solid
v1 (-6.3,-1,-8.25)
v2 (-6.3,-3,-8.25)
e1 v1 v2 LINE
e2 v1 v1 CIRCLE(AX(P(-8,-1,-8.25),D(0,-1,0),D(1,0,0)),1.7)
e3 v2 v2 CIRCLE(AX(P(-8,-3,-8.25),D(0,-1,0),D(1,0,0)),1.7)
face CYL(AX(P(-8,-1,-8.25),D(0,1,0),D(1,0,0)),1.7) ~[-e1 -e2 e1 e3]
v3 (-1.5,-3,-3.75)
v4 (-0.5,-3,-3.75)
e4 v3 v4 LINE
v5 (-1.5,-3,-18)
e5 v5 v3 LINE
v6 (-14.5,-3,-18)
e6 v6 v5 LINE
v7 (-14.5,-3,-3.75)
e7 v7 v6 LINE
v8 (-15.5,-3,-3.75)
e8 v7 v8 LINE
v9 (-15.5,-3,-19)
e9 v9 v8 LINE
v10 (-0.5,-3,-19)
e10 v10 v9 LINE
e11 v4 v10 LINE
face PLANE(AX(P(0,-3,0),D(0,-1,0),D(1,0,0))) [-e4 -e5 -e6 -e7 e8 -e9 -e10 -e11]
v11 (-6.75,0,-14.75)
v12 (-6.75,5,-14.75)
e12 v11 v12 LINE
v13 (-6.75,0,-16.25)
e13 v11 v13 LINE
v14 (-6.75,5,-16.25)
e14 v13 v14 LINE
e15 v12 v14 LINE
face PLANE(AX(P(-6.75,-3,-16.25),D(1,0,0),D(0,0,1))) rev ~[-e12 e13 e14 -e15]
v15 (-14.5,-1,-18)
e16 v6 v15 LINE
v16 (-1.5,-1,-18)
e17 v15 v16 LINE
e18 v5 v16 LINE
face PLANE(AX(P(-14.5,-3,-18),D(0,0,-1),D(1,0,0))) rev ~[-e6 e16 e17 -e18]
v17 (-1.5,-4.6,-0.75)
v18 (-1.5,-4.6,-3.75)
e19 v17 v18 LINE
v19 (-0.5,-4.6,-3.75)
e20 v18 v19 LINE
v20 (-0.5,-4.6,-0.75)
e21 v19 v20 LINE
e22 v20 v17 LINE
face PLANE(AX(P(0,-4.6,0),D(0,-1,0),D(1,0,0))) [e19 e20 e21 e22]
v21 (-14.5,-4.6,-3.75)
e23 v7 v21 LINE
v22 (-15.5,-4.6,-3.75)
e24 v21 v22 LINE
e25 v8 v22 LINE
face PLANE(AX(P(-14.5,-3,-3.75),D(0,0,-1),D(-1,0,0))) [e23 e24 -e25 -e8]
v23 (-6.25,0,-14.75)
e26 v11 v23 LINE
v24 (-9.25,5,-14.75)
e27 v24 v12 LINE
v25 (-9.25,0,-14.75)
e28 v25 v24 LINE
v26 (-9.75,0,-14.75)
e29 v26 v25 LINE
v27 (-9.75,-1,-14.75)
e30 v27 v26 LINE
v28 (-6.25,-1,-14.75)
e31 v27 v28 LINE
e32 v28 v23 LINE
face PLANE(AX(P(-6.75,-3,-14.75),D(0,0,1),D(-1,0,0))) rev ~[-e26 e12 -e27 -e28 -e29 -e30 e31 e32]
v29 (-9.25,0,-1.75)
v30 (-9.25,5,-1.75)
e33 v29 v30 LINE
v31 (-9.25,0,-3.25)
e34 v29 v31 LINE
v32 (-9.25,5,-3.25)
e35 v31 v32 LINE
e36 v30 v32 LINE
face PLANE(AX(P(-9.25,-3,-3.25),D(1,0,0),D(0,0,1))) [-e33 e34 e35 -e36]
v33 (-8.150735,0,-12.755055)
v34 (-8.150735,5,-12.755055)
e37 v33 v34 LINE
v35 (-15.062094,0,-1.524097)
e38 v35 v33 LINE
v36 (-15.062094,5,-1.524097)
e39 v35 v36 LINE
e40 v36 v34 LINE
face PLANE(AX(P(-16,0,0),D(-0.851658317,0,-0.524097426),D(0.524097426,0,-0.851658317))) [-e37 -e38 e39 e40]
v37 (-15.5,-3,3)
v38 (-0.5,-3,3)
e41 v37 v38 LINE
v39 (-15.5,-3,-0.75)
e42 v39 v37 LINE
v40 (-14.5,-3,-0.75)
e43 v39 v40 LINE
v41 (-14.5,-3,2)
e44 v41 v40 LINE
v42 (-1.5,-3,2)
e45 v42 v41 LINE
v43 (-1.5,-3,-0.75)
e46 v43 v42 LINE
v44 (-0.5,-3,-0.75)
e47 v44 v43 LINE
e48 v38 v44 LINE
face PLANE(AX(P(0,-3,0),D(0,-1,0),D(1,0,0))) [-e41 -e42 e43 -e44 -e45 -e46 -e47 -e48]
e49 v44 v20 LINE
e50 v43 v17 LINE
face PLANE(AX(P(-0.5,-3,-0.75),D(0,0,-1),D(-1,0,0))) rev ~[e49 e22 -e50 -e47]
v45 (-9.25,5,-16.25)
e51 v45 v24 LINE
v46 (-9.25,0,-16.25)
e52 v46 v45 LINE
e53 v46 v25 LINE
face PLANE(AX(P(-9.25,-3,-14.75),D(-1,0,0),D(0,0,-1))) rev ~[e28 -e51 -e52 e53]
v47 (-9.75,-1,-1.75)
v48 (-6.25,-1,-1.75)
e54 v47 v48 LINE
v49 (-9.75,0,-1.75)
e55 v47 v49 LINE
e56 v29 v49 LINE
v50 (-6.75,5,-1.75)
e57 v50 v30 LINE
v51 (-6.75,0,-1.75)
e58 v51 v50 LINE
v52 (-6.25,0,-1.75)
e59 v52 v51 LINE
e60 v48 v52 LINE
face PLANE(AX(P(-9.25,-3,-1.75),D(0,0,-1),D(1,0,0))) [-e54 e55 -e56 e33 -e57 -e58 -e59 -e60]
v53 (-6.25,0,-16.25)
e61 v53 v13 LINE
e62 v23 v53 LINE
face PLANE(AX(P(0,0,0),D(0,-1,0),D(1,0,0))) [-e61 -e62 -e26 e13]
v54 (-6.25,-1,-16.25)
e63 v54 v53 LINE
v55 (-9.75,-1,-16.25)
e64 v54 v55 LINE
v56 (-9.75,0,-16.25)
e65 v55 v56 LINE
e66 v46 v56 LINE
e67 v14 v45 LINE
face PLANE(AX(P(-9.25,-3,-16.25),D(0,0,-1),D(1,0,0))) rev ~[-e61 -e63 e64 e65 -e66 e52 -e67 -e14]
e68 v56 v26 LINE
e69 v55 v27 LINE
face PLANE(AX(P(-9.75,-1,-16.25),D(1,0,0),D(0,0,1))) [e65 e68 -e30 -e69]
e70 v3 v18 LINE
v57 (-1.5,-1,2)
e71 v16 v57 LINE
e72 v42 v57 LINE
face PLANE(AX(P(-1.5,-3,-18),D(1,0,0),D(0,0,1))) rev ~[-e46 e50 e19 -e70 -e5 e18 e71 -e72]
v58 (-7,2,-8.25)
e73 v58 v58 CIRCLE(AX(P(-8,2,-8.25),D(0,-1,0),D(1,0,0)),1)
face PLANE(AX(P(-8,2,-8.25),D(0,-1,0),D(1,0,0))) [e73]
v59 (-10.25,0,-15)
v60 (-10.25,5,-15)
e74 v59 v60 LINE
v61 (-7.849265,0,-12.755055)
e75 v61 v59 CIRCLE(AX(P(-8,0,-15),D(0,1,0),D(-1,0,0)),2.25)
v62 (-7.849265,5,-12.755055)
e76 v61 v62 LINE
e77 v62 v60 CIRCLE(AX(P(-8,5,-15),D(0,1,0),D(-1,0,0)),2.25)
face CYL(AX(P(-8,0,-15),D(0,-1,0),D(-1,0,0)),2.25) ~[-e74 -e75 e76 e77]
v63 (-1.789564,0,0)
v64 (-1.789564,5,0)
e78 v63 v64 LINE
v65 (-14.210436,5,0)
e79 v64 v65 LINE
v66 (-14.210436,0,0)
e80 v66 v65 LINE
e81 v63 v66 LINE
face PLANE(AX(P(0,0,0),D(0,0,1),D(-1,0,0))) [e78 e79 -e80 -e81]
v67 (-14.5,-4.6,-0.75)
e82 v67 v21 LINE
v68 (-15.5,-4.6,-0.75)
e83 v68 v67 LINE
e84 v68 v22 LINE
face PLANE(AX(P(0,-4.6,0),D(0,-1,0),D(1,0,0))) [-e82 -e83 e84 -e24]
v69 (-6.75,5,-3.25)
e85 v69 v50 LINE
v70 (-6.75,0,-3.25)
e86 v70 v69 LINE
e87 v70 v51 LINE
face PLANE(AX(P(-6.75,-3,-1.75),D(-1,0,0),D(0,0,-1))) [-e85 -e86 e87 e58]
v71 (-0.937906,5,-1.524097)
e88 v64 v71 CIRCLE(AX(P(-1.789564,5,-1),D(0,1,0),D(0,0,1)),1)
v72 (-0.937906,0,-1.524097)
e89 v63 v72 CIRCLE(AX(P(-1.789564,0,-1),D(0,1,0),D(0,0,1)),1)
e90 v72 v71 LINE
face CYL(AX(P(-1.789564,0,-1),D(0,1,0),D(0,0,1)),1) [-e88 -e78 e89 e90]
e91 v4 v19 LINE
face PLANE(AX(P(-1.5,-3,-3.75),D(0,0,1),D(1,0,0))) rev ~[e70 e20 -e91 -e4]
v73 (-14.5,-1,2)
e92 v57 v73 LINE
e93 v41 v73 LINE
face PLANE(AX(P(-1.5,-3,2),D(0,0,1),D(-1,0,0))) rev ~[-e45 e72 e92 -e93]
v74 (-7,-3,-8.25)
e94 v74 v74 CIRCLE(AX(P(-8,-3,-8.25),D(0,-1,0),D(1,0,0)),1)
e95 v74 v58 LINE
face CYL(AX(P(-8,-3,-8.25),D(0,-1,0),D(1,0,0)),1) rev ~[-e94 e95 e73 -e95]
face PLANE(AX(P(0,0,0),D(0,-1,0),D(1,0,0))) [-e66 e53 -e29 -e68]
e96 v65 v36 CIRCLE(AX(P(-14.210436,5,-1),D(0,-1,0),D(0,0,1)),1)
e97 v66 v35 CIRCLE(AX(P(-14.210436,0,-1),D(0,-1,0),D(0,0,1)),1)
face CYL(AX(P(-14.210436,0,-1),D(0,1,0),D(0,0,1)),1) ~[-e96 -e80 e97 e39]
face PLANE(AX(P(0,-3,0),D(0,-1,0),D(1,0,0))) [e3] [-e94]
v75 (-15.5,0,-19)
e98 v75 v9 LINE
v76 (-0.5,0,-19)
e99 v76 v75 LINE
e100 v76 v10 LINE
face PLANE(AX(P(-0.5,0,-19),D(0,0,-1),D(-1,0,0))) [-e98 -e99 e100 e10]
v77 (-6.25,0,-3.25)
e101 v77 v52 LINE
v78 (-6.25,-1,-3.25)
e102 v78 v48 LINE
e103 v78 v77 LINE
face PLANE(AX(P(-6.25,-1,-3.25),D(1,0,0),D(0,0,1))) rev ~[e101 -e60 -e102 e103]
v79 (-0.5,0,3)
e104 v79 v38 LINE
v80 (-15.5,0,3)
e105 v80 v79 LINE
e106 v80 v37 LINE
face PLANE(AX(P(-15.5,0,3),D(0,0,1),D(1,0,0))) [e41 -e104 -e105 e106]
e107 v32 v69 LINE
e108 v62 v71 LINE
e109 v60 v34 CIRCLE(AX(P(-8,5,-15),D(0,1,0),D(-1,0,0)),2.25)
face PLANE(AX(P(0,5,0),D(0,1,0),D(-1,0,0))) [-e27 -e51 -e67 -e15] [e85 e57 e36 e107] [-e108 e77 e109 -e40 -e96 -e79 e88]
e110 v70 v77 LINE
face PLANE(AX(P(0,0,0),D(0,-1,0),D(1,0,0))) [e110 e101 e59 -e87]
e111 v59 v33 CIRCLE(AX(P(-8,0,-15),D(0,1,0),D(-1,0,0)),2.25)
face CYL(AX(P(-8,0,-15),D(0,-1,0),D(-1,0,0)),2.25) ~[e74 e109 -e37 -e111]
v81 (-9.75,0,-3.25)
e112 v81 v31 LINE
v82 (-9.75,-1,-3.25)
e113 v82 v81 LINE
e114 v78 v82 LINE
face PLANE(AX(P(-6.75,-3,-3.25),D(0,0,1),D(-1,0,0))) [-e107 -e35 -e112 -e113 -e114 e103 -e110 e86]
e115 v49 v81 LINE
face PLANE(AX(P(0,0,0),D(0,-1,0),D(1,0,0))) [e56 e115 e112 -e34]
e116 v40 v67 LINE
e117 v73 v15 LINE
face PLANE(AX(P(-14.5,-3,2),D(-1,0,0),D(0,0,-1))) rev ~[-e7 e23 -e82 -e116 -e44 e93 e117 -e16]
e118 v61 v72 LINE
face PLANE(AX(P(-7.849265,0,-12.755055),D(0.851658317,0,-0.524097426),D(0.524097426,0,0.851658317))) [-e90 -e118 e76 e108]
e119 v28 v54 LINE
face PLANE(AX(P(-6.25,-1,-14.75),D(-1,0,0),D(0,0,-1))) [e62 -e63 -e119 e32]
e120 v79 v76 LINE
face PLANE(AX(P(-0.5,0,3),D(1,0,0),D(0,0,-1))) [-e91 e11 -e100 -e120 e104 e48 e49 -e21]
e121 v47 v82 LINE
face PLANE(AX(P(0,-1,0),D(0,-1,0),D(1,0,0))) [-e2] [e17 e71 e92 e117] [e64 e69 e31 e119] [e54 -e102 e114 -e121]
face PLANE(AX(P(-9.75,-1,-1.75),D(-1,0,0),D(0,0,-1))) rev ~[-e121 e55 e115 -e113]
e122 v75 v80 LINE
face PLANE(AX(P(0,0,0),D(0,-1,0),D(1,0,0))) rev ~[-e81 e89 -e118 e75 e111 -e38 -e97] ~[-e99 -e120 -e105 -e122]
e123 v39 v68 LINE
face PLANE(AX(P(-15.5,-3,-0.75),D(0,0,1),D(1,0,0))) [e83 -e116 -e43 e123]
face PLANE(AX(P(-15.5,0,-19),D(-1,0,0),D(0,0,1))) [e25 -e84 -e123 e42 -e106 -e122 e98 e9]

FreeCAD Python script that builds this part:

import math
import FreeCAD as App
import Part
import Sketcher
from FreeCAD import Vector
Q = App.Units.Quantity


def edges_at(feature, points):
    """Names of the edges that pass closest to the given points."""
    edges = feature.Shape.Edges
    near = lambda p: min(range(len(edges)), key=lambda i: edges[i].distToShape(Part.Vertex(*p))[0])
    return sorted({f"Edge{near(p) + 1}" for p in points})

doc = App.newDocument("Part")
body = doc.addObject("PartDesign::Body", "Body")

# Sketch on XZ plane
sketch1 = doc.addObject("Sketcher::SketchObject", "Sketch")
body.addObject(sketch1)
sketch1.AttachmentSupport = (doc.XZ_Plane, [""])
sketch1.MapMode = "FlatFace"
sketch1.addGeometry(Part.LineSegment(Vector(-16, 0, 0), Vector(0, 0, 0)), False)
sketch1.addGeometry(Part.LineSegment(Vector(0, 0, 0), Vector(-7.85, -12.76, 0)), False)
sketch1.addGeometry(Part.ArcOfCircle(Part.Circle(Vector(-8, -15, 0), Vector(0, 0, 1), 2.25), math.radians(94), math.radians(446)), False)
sketch1.addGeometry(Part.LineSegment(Vector(-8.15, -12.76, 0), Vector(-16, 0, 0)), False)
sketch1.addConstraint(Sketcher.Constraint("Coincident", 0, 2, 1, 1))
sketch1.addConstraint(Sketcher.Constraint("Coincident", 1, 2, 2, 2))
sketch1.addConstraint(Sketcher.Constraint("Coincident", 2, 1, 3, 1))
sketch1.addConstraint(Sketcher.Constraint("Coincident", 3, 2, 0, 1))
sketch1.addConstraint(Sketcher.Constraint("Horizontal", 0))
sketch1.addConstraint(Sketcher.Constraint("Coincident", 0, 2, -1, 1))
sketch1.addConstraint(Sketcher.Constraint("Horizontal", 1, 2, 2, 1))
sketch1.addConstraint(Sketcher.Constraint("Equal", 1, 3))
sketch1.addConstraint(Sketcher.Constraint("DistanceX", 0, 1, 0, 2, Q("16 mm")))
sketch1.addConstraint(Sketcher.Constraint("Radius", 2, Q("2.25 mm")))
sketch1.addConstraint(Sketcher.Constraint("DistanceY", 2, 3, -1, 1, Q("15 mm")))
sketch1.addConstraint(Sketcher.Constraint("DistanceY", 1, 2, -1, 1, Q("12.755 mm")))
pad1 = doc.addObject("PartDesign::Pad", "Pad")
body.addObject(pad1)
pad1.Profile = sketch1
pad1.Length = 5
pad1.Reversed = True
doc.recompute()

fillet = doc.addObject("PartDesign::Fillet", "Fillet")
body.addObject(fillet)
fillet.Base = (pad1, edges_at(pad1, [(0, 2.5, 0), (-16, 2.5, 0)]))
fillet.Radius = 1

# Sketch on XZ plane
sketch2 = doc.addObject("Sketcher::SketchObject", "Sketch001")
body.addObject(sketch2)
sketch2.AttachmentSupport = (doc.XZ_Plane, [""])
sketch2.MapMode = "FlatFace"
sketch2.addGeometry(Part.LineSegment(Vector(0, 3, 0), Vector(-16, 3, 0)), False)
sketch2.addGeometry(Part.LineSegment(Vector(-16, 3, 0), Vector(-16, -19, 0)), False)
sketch2.addGeometry(Part.LineSegment(Vector(-16, -19, 0), Vector(0, -19, 0)), False)
sketch2.addGeometry(Part.LineSegment(Vector(0, -19, 0), Vector(0, 3, 0)), False)
sketch2.addConstraint(Sketcher.Constraint("Coincident", 0, 2, 1, 1))
sketch2.addConstraint(Sketcher.Constraint("Coincident", 1, 2, 2, 1))
sketch2.addConstraint(Sketcher.Constraint("Coincident", 2, 2, 3, 1))
sketch2.addConstraint(Sketcher.Constraint("Coincident", 3, 2, 0, 1))
sketch2.addConstraint(Sketcher.Constraint("Horizontal", 0))
sketch2.addConstraint(Sketcher.Constraint("Vertical", 1))
sketch2.addConstraint(Sketcher.Constraint("Horizontal", 2))
sketch2.addConstraint(Sketcher.Constraint("Vertical", 3))
sketch2.addConstraint(Sketcher.Constraint("DistanceX", 0, 2, 0, 1, Q("15 mm")))
sketch2.addConstraint(Sketcher.Constraint("DistanceY", 1, 2, 1, 1, Q("22 mm")))
sketch2.addConstraint(Sketcher.Constraint("DistanceY", -1, 1, 0, 2, Q("3 mm")))
sketch2.addConstraint(Sketcher.Constraint("DistanceX", 0, 2, -1, 1, Q("15.5 mm")))
pad2 = doc.addObject("PartDesign::Pad", "Pad001")
body.addObject(pad2)
pad2.Profile = sketch2
pad2.Length = 3

# Sketch on XZ plane
sketch3 = doc.addObject("Sketcher::SketchObject", "Sketch002")
body.addObject(sketch3)
sketch3.AttachmentSupport = (doc.XZ_Plane, [""])
sketch3.MapMode = "FlatFace"
sketch3.AttachmentOffset = App.Placement(Vector(0, 0, 3), App.Rotation())
sketch3.addGeometry(Part.LineSegment(Vector(-1.5, -3.8, 0), Vector(-0.5, -3.8, 0)), False)
sketch3.addGeometry(Part.LineSegment(Vector(-0.5, -3.8, 0), Vector(-0.5, -0.8, 0)), False)
sketch3.addGeometry(Part.LineSegment(Vector(-0.5, -0.8, 0), Vector(-1.5, -0.8, 0)), False)
sketch3.addGeometry(Part.LineSegment(Vector(-1.5, -0.8, 0), Vector(-1.5, -3.8, 0)), False)
sketch3.addGeometry(Part.LineSegment(Vector(-14.5, -0.8, 0), Vector(-15.5, -0.8, 0)), False)
sketch3.addGeometry(Part.LineSegment(Vector(-15.5, -0.8, 0), Vector(-15.5, -3.8, 0)), False)
sketch3.addGeometry(Part.LineSegment(Vector(-15.5, -3.8, 0), Vector(-14.5, -3.8, 0)), False)
sketch3.addGeometry(Part.LineSegment(Vector(-14.5, -3.8, 0), Vector(-14.5, -0.8, 0)), False)
sketch3.addConstraint(Sketcher.Constraint("Coincident", 0, 2, 1, 1))
sketch3.addConstraint(Sketcher.Constraint("Coincident", 1, 2, 2, 1))
sketch3.addConstraint(Sketcher.Constraint("Coincident", 2, 2, 3, 1))
sketch3.addConstraint(Sketcher.Constraint("Coincident", 3, 2, 0, 1))
sketch3.addConstraint(Sketcher.Constraint("Coincident", 4, 2, 5, 1))
sketch3.addConstraint(Sketcher.Constraint("Coincident", 5, 2, 6, 1))
sketch3.addConstraint(Sketcher.Constraint("Coincident", 6, 2, 7, 1))
sketch3.addConstraint(Sketcher.Constraint("Coincident", 7, 2, 4, 1))
sketch3.addConstraint(Sketcher.Constraint("Horizontal", 0))
sketch3.addConstraint(Sketcher.Constraint("Vertical", 1))
sketch3.addConstraint(Sketcher.Constraint("Horizontal", 2))
sketch3.addConstraint(Sketcher.Constraint("Vertical", 3))
sketch3.addConstraint(Sketcher.Constraint("Horizontal", 4))
sketch3.addConstraint(Sketcher.Constraint("Vertical", 5))
sketch3.addConstraint(Sketcher.Constraint("Horizontal", 6))
sketch3.addConstraint(Sketcher.Constraint("Vertical", 7))
sketch3.addConstraint(Sketcher.Constraint("Horizontal", 2, 2, 4, 2))
sketch3.addConstraint(Sketcher.Constraint("Horizontal", 3, 2, 5, 2))
sketch3.addConstraint(Sketcher.Constraint("Equal", 2, 4))
sketch3.addConstraint(Sketcher.Constraint("DistanceX", 0, 1, 0, 2, Q("1 mm")))
sketch3.addConstraint(Sketcher.Constraint("DistanceY", 1, 1, 1, 2, Q("3 mm")))
sketch3.addConstraint(Sketcher.Constraint("DistanceY", 0, 2, -1, 1, Q("3.75 mm")))
sketch3.addConstraint(Sketcher.Constraint("DistanceX", 4, 2, 2, 2, Q("14 mm")))
sketch3.addConstraint(Sketcher.Constraint("DistanceX", 0, 2, -1, 1, Q("0.5 mm")))
pad3 = doc.addObject("PartDesign::Pad", "Pad002")
body.addObject(pad3)
pad3.Profile = sketch3
pad3.Length = 1.6

# Sketch on XZ plane
sketch4 = doc.addObject("Sketcher::SketchObject", "Sketch003")
body.addObject(sketch4)
sketch4.AttachmentSupport = (doc.XZ_Plane, [""])
sketch4.MapMode = "FlatFace"
sketch4.AttachmentOffset = App.Placement(Vector(0, 0, 3), App.Rotation())
sketch4.addGeometry(Part.LineSegment(Vector(-6.8, -1.8, 0), Vector(-9.2, -1.8, 0)), False)
sketch4.addGeometry(Part.LineSegment(Vector(-9.2, -1.8, 0), Vector(-9.2, -3.2, 0)), False)
sketch4.addGeometry(Part.LineSegment(Vector(-9.2, -3.2, 0), Vector(-6.8, -3.2, 0)), False)
sketch4.addGeometry(Part.LineSegment(Vector(-6.8, -3.2, 0), Vector(-6.8, -1.8, 0)), False)
sketch4.addGeometry(Part.LineSegment(Vector(-6.8, -16.2, 0), Vector(-6.8, -14.8, 0)), False)
sketch4.addGeometry(Part.LineSegment(Vector(-6.8, -14.8, 0), Vector(-9.2, -14.8, 0)), False)
sketch4.addGeometry(Part.LineSegment(Vector(-9.2, -14.8, 0), Vector(-9.2, -16.2, 0)), False)
sketch4.addGeometry(Part.LineSegment(Vector(-9.2, -16.2, 0), Vector(-6.8, -16.2, 0)), False)
sketch4.addConstraint(Sketcher.Constraint("Coincident", 0, 2, 1, 1))
sketch4.addConstraint(Sketcher.Constraint("Coincident", 1, 2, 2, 1))
sketch4.addConstraint(Sketcher.Constraint("Coincident", 2, 2, 3, 1))
sketch4.addConstraint(Sketcher.Constraint("Coincident", 3, 2, 0, 1))
sketch4.addConstraint(Sketcher.Constraint("Coincident", 4, 2, 5, 1))
sketch4.addConstraint(Sketcher.Constraint("Coincident", 5, 2, 6, 1))
sketch4.addConstraint(Sketcher.Constraint("Coincident", 6, 2, 7, 1))
sketch4.addConstraint(Sketcher.Constraint("Coincident", 7, 2, 4, 1))
sketch4.addConstraint(Sketcher.Constraint("Horizontal", 0))
sketch4.addConstraint(Sketcher.Constraint("Vertical", 1))
sketch4.addConstraint(Sketcher.Constraint("Horizontal", 2))
sketch4.addConstraint(Sketcher.Constraint("Vertical", 3))
sketch4.addConstraint(Sketcher.Constraint("Vertical", 4))
sketch4.addConstraint(Sketcher.Constraint("Horizontal", 5))
sketch4.addConstraint(Sketcher.Constraint("Vertical", 6))
sketch4.addConstraint(Sketcher.Constraint("Horizontal", 7))
sketch4.addConstraint(Sketcher.Constraint("Vertical", 3, 2, 4, 2))
sketch4.addConstraint(Sketcher.Constraint("Vertical", 1, 2, 5, 2))
sketch4.addConstraint(Sketcher.Constraint("Equal", 3, 4))
sketch4.addConstraint(Sketcher.Constraint("DistanceX", 0, 2, 0, 1, Q("2.5 mm")))
sketch4.addConstraint(Sketcher.Constraint("DistanceY", 1, 2, 1, 1, Q("1.5 mm")))
sketch4.addConstraint(Sketcher.Constraint("DistanceY", 4, 2, 3, 2, Q("13 mm")))
sketch4.addConstraint(Sketcher.Constraint("DistanceX", 0, 2, -1, 1, Q("9.25 mm")))
sketch4.addConstraint(Sketcher.Constraint("DistanceY", 0, 2, -1, 1, Q("1.75 mm")))
pocket1 = doc.addObject("PartDesign::Pocket", "Pocket")
body.addObject(pocket1)
pocket1.Profile = sketch4
pocket1.Length = 16

# Sketch on XZ plane
sketch5 = doc.addObject("Sketcher::SketchObject", "Sketch004")
body.addObject(sketch5)
sketch5.AttachmentSupport = (doc.XZ_Plane, [""])
sketch5.MapMode = "FlatFace"
sketch5.AttachmentOffset = App.Placement(Vector(0, 0, 3), App.Rotation())
sketch5.addGeometry(Part.LineSegment(Vector(-2, -18, 0), Vector(-2, 2, 0)), False)
sketch5.addGeometry(Part.LineSegment(Vector(-2, 2, 0), Vector(-14, 2, 0)), False)
sketch5.addGeometry(Part.LineSegment(Vector(-14, 2, 0), Vector(-14, -18, 0)), False)
sketch5.addGeometry(Part.LineSegment(Vector(-14, -18, 0), Vector(-2, -18, 0)), False)
sketch5.addConstraint(Sketcher.Constraint("Coincident", 0, 2, 1, 1))
sketch5.addConstraint(Sketcher.Constraint("Coincident", 1, 2, 2, 1))
sketch5.addConstraint(Sketcher.Constraint("Coincident", 2, 2, 3, 1))
sketch5.addConstraint(Sketcher.Constraint("Coincident", 3, 2, 0, 1))
sketch5.addConstraint(Sketcher.Constraint("Vertical", 0))
sketch5.addConstraint(Sketcher.Constraint("Horizontal", 1))
sketch5.addConstraint(Sketcher.Constraint("Vertical", 2))
sketch5.addConstraint(Sketcher.Constraint("Horizontal", 3))
sketch5.addConstraint(Sketcher.Constraint("DistanceX", 1, 2, 1, 1, Q("13 mm")))
sketch5.addConstraint(Sketcher.Constraint("DistanceY", 0, 1, 0, 2, Q("20 mm")))
sketch5.addConstraint(Sketcher.Constraint("DistanceY", -1, 1, 0, 2, Q("2 mm")))
sketch5.addConstraint(Sketcher.Constraint("DistanceX", 0, 2, -1, 1, Q("1.5 mm")))
pocket2 = doc.addObject("PartDesign::Pocket", "Pocket001")
body.addObject(pocket2)
pocket2.Profile = sketch5
pocket2.Length = 2

# Sketch on XZ plane
sketch6 = doc.addObject("Sketcher::SketchObject", "Sketch005")
body.addObject(sketch6)
sketch6.AttachmentSupport = (doc.XZ_Plane, [""])
sketch6.MapMode = "FlatFace"
sketch6.AttachmentOffset = App.Placement(Vector(0, 0, 1), App.Rotation())
sketch6.addGeometry(Part.LineSegment(Vector(-9.8, -16.2, 0), Vector(-6.2, -16.2, 0)), False)
sketch6.addGeometry(Part.LineSegment(Vector(-6.2, -16.2, 0), Vector(-6.2, -14.8, 0)), False)
sketch6.addGeometry(Part.LineSegment(Vector(-6.2, -14.8, 0), Vector(-9.8, -14.8, 0)), False)
sketch6.addGeometry(Part.LineSegment(Vector(-9.8, -14.8, 0), Vector(-9.8, -16.2, 0)), False)
sketch6.addGeometry(Part.LineSegment(Vector(-6.2, -3.2, 0), Vector(-6.2, -1.8, 0)), False)
sketch6.addGeometry(Part.LineSegment(Vector(-6.2, -1.8, 0), Vector(-9.8, -1.8, 0)), False)
sketch6.addGeometry(Part.LineSegment(Vector(-9.8, -1.8, 0), Vector(-9.8, -3.2, 0)), False)
sketch6.addGeometry(Part.LineSegment(Vector(-9.8, -3.2, 0), Vector(-6.2, -3.2, 0)), False)
sketch6.addConstraint(Sketcher.Constraint("Coincident", 0, 2, 1, 1))
sketch6.addConstraint(Sketcher.Constraint("Coincident", 1, 2, 2, 1))
sketch6.addConstraint(Sketcher.Constraint("Coincident", 2, 2, 3, 1))
sketch6.addConstraint(Sketcher.Constraint("Coincident", 3, 2, 0, 1))
sketch6.addConstraint(Sketcher.Constraint("Coincident", 4, 2, 5, 1))
sketch6.addConstraint(Sketcher.Constraint("Coincident", 5, 2, 6, 1))
sketch6.addConstraint(Sketcher.Constraint("Coincident", 6, 2, 7, 1))
sketch6.addConstraint(Sketcher.Constraint("Coincident", 7, 2, 4, 1))
sketch6.addConstraint(Sketcher.Constraint("Horizontal", 0))
sketch6.addConstraint(Sketcher.Constraint("Vertical", 1))
sketch6.addConstraint(Sketcher.Constraint("Horizontal", 2))
sketch6.addConstraint(Sketcher.Constraint("Vertical", 3))
sketch6.addConstraint(Sketcher.Constraint("Vertical", 4))
sketch6.addConstraint(Sketcher.Constraint("Horizontal", 5))
sketch6.addConstraint(Sketcher.Constraint("Vertical", 6))
sketch6.addConstraint(Sketcher.Constraint("Horizontal", 7))
sketch6.addConstraint(Sketcher.Constraint("Vertical", 1, 2, 4, 2))
sketch6.addConstraint(Sketcher.Constraint("Vertical", 3, 2, 5, 2))
sketch6.addConstraint(Sketcher.Constraint("Equal", 3, 4))
sketch6.addConstraint(Sketcher.Constraint("DistanceX", 0, 1, 0, 2, Q("3.5 mm")))
sketch6.addConstraint(Sketcher.Constraint("DistanceY", 1, 1, 1, 2, Q("1.5 mm")))
sketch6.addConstraint(Sketcher.Constraint("DistanceY", 1, 2, 4, 2, Q("13 mm")))
sketch6.addConstraint(Sketcher.Constraint("DistanceX", 0, 2, -1, 1, Q("6.25 mm")))
sketch6.addConstraint(Sketcher.Constraint("DistanceY", 0, 2, -1, 1, Q("16.25 mm")))
pocket3 = doc.addObject("PartDesign::Pocket", "Pocket002")
body.addObject(pocket3)
pocket3.Profile = sketch6
pocket3.Length = 1

# Sketch on XZ plane
sketch7 = doc.addObject("Sketcher::SketchObject", "Sketch006")
body.addObject(sketch7)
sketch7.AttachmentSupport = (doc.XZ_Plane, [""])
sketch7.MapMode = "FlatFace"
sketch7.AttachmentOffset = App.Placement(Vector(0, 0, 1), App.Rotation())
sketch7.addGeometry(Part.Circle(Vector(-8, -8.2, 0), Vector(0, 0, 1), 1.7), False)
sketch7.addConstraint(Sketcher.Constraint("Diameter", 0, Q("3.4 mm")))
sketch7.addConstraint(Sketcher.Constraint("DistanceX", 0, 3, -1, 1, Q("8 mm")))
sketch7.addConstraint(Sketcher.Constraint("DistanceY", 0, 3, -1, 1, Q("8.25 mm")))
pad4 = doc.addObject("PartDesign::Pad", "Pad003")
body.addObject(pad4)
pad4.Profile = sketch7
pad4.Length = 2

# Sketch on XZ plane
sketch8 = doc.addObject("Sketcher::SketchObject", "Sketch007")
body.addObject(sketch8)
sketch8.AttachmentSupport = (doc.XZ_Plane, [""])
sketch8.MapMode = "FlatFace"
sketch8.AttachmentOffset = App.Placement(Vector(0, 0, 3), App.Rotation())
sketch8.addGeometry(Part.Circle(Vector(-8, -8.2, 0), Vector(0, 0, 1), 1), False)
sketch8.addConstraint(Sketcher.Constraint("Diameter", 0, Q("2 mm")))
sketch8.addConstraint(Sketcher.Constraint("DistanceX", 0, 3, -1, 1, Q("8 mm")))
sketch8.addConstraint(Sketcher.Constraint("DistanceY", 0, 3, -1, 1, Q("8.25 mm")))
pocket4 = doc.addObject("PartDesign::Pocket", "Pocket003")
body.addObject(pocket4)
pocket4.Profile = sketch8
pocket4.Length = 5

doc.recompute()
